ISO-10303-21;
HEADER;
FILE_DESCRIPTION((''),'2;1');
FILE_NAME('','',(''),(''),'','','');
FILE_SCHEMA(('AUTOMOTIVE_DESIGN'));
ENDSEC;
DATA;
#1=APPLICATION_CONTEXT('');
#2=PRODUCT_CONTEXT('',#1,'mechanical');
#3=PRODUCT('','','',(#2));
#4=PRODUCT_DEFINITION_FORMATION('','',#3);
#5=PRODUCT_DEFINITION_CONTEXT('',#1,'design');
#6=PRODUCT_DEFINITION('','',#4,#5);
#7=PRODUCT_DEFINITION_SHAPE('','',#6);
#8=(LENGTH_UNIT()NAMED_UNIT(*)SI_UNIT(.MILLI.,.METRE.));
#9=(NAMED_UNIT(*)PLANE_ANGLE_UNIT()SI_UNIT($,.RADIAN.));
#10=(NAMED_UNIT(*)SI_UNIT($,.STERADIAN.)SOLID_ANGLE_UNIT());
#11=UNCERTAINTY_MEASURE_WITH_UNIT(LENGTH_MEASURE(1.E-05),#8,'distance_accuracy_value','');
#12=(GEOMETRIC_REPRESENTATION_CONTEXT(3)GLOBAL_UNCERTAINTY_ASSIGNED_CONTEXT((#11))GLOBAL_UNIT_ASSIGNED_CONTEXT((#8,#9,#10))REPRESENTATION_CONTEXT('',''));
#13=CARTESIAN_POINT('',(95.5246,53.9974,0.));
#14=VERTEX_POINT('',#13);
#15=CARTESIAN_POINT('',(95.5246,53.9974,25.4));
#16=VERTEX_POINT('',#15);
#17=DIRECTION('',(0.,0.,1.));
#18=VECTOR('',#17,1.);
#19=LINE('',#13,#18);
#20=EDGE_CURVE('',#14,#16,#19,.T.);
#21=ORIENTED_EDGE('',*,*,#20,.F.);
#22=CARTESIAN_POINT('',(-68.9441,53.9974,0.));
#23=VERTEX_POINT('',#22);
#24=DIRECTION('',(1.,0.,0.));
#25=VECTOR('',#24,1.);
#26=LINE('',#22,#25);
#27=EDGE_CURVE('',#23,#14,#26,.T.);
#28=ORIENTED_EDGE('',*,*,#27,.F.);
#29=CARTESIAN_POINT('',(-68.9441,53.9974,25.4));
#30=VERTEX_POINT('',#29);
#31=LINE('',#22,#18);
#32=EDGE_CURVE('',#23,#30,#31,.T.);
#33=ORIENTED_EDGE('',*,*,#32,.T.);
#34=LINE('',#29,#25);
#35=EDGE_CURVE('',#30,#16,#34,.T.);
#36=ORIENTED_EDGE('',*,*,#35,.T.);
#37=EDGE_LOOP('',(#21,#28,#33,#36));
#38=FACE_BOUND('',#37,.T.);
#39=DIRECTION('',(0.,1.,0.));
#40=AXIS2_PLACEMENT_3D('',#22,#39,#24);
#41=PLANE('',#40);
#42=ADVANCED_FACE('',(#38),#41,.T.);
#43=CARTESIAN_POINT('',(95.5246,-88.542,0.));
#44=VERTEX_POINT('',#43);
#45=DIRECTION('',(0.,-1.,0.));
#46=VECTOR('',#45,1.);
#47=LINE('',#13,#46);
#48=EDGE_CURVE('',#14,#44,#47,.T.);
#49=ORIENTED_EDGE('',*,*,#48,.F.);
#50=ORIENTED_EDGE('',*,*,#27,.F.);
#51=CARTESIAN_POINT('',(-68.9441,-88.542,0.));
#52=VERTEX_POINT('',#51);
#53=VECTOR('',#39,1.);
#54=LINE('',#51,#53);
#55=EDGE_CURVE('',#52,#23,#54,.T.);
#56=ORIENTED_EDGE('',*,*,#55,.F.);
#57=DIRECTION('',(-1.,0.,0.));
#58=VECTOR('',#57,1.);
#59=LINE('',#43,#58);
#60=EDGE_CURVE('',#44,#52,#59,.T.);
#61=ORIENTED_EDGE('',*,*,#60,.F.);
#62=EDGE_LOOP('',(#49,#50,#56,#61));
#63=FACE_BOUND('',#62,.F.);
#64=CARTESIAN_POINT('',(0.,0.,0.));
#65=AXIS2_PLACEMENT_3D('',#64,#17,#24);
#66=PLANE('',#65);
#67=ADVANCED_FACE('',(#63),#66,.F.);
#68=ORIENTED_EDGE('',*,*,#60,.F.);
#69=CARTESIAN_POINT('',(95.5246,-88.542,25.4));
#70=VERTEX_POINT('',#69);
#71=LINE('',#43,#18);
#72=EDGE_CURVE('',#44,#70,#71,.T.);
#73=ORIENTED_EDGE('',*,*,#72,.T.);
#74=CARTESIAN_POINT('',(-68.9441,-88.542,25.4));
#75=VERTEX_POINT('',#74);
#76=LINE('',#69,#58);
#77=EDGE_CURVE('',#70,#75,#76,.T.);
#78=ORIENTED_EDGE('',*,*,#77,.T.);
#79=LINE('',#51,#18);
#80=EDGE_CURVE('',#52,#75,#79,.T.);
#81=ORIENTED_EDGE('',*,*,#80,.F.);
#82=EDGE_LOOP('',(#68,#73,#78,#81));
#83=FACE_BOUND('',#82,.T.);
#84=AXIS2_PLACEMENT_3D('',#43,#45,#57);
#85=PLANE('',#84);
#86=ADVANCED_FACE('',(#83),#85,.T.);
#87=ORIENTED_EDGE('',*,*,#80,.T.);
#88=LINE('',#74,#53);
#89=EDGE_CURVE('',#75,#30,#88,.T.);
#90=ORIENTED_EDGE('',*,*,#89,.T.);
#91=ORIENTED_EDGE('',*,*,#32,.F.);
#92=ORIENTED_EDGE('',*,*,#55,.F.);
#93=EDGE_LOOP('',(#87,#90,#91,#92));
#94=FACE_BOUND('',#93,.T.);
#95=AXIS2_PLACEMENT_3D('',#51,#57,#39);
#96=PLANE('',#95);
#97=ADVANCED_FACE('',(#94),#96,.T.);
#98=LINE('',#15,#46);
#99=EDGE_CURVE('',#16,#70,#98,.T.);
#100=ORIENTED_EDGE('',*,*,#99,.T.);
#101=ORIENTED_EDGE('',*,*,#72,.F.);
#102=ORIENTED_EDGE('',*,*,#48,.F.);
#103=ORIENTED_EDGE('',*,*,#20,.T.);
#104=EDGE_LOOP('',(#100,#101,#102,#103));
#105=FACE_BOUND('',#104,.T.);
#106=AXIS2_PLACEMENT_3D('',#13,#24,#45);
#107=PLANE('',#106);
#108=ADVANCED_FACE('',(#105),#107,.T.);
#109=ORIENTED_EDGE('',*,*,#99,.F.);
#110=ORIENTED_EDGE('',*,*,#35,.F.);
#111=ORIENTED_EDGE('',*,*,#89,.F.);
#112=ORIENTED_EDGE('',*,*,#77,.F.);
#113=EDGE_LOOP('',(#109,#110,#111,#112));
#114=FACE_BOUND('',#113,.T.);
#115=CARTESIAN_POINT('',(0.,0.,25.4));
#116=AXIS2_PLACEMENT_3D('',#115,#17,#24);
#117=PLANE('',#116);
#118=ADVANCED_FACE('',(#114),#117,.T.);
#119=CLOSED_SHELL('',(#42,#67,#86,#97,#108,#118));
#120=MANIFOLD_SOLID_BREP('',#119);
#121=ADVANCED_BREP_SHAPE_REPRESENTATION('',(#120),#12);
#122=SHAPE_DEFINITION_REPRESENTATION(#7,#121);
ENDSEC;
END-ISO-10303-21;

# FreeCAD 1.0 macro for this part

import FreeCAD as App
import Part
import Sketcher
Q = App.Units.Quantity

doc = App.newDocument("Part")
params = doc.addObject("Spreadsheet::Sheet", "Params")
for row, (alias, value) in enumerate([
    ("pad1_length", "1 in"),
], start=1):
    params.set(f"A{row}", alias)
    params.set(f"B{row}", "=" + value)
    params.setAlias(f"B{row}", alias)

body = doc.addObject("PartDesign::Body", "Body")

sketch1 = body.newObject("Sketcher::SketchObject", "Sketch")
sketch1.AttachmentSupport = (doc.getObject("XY_Plane"), [""])
sketch1.MapMode = "FlatFace"
sketch1.addGeometry([
    Part.LineSegment(App.Vector(95.5246, 53.9974, 0), App.Vector(-68.9441, 53.9974, 0)),
    Part.LineSegment(App.Vector(-68.9441, 53.9974, 0), App.Vector(-68.9441, -88.542, 0)),
    Part.LineSegment(App.Vector(-68.9441, -88.542, 0), App.Vector(95.5246, -88.542, 0)),
    Part.LineSegment(App.Vector(95.5246, -88.542, 0), App.Vector(95.5246, 53.9974, 0)),
], False)
sketch1.addConstraint([
    Sketcher.Constraint("Coincident", 0, 2, 1, 1),
    Sketcher.Constraint("Coincident", 1, 2, 2, 1),
    Sketcher.Constraint("Coincident", 2, 2, 3, 1),
    Sketcher.Constraint("Coincident", 3, 2, 0, 1),
    Sketcher.Constraint("Horizontal", 0),
    Sketcher.Constraint("Vertical", 1),
    Sketcher.Constraint("Horizontal", 2),
    Sketcher.Constraint("Vertical", 3),
    Sketcher.Constraint("DistanceX", 0, 2, 0, 1, 164.4687),
    Sketcher.Constraint("DistanceY", 1, 2, 1, 1, 142.5394),
    Sketcher.Constraint("DistanceY", 1, 2, -1, 1, Q("3.4859 in")),
    Sketcher.Constraint("DistanceX", -1, 1, 2, 2, Q("3.7608 in")),
])
pad1 = body.newObject("PartDesign::Pad", "Pad")
pad1.Profile = sketch1
pad1.setExpression("Length", "Params.pad1_length")

doc.recompute()
